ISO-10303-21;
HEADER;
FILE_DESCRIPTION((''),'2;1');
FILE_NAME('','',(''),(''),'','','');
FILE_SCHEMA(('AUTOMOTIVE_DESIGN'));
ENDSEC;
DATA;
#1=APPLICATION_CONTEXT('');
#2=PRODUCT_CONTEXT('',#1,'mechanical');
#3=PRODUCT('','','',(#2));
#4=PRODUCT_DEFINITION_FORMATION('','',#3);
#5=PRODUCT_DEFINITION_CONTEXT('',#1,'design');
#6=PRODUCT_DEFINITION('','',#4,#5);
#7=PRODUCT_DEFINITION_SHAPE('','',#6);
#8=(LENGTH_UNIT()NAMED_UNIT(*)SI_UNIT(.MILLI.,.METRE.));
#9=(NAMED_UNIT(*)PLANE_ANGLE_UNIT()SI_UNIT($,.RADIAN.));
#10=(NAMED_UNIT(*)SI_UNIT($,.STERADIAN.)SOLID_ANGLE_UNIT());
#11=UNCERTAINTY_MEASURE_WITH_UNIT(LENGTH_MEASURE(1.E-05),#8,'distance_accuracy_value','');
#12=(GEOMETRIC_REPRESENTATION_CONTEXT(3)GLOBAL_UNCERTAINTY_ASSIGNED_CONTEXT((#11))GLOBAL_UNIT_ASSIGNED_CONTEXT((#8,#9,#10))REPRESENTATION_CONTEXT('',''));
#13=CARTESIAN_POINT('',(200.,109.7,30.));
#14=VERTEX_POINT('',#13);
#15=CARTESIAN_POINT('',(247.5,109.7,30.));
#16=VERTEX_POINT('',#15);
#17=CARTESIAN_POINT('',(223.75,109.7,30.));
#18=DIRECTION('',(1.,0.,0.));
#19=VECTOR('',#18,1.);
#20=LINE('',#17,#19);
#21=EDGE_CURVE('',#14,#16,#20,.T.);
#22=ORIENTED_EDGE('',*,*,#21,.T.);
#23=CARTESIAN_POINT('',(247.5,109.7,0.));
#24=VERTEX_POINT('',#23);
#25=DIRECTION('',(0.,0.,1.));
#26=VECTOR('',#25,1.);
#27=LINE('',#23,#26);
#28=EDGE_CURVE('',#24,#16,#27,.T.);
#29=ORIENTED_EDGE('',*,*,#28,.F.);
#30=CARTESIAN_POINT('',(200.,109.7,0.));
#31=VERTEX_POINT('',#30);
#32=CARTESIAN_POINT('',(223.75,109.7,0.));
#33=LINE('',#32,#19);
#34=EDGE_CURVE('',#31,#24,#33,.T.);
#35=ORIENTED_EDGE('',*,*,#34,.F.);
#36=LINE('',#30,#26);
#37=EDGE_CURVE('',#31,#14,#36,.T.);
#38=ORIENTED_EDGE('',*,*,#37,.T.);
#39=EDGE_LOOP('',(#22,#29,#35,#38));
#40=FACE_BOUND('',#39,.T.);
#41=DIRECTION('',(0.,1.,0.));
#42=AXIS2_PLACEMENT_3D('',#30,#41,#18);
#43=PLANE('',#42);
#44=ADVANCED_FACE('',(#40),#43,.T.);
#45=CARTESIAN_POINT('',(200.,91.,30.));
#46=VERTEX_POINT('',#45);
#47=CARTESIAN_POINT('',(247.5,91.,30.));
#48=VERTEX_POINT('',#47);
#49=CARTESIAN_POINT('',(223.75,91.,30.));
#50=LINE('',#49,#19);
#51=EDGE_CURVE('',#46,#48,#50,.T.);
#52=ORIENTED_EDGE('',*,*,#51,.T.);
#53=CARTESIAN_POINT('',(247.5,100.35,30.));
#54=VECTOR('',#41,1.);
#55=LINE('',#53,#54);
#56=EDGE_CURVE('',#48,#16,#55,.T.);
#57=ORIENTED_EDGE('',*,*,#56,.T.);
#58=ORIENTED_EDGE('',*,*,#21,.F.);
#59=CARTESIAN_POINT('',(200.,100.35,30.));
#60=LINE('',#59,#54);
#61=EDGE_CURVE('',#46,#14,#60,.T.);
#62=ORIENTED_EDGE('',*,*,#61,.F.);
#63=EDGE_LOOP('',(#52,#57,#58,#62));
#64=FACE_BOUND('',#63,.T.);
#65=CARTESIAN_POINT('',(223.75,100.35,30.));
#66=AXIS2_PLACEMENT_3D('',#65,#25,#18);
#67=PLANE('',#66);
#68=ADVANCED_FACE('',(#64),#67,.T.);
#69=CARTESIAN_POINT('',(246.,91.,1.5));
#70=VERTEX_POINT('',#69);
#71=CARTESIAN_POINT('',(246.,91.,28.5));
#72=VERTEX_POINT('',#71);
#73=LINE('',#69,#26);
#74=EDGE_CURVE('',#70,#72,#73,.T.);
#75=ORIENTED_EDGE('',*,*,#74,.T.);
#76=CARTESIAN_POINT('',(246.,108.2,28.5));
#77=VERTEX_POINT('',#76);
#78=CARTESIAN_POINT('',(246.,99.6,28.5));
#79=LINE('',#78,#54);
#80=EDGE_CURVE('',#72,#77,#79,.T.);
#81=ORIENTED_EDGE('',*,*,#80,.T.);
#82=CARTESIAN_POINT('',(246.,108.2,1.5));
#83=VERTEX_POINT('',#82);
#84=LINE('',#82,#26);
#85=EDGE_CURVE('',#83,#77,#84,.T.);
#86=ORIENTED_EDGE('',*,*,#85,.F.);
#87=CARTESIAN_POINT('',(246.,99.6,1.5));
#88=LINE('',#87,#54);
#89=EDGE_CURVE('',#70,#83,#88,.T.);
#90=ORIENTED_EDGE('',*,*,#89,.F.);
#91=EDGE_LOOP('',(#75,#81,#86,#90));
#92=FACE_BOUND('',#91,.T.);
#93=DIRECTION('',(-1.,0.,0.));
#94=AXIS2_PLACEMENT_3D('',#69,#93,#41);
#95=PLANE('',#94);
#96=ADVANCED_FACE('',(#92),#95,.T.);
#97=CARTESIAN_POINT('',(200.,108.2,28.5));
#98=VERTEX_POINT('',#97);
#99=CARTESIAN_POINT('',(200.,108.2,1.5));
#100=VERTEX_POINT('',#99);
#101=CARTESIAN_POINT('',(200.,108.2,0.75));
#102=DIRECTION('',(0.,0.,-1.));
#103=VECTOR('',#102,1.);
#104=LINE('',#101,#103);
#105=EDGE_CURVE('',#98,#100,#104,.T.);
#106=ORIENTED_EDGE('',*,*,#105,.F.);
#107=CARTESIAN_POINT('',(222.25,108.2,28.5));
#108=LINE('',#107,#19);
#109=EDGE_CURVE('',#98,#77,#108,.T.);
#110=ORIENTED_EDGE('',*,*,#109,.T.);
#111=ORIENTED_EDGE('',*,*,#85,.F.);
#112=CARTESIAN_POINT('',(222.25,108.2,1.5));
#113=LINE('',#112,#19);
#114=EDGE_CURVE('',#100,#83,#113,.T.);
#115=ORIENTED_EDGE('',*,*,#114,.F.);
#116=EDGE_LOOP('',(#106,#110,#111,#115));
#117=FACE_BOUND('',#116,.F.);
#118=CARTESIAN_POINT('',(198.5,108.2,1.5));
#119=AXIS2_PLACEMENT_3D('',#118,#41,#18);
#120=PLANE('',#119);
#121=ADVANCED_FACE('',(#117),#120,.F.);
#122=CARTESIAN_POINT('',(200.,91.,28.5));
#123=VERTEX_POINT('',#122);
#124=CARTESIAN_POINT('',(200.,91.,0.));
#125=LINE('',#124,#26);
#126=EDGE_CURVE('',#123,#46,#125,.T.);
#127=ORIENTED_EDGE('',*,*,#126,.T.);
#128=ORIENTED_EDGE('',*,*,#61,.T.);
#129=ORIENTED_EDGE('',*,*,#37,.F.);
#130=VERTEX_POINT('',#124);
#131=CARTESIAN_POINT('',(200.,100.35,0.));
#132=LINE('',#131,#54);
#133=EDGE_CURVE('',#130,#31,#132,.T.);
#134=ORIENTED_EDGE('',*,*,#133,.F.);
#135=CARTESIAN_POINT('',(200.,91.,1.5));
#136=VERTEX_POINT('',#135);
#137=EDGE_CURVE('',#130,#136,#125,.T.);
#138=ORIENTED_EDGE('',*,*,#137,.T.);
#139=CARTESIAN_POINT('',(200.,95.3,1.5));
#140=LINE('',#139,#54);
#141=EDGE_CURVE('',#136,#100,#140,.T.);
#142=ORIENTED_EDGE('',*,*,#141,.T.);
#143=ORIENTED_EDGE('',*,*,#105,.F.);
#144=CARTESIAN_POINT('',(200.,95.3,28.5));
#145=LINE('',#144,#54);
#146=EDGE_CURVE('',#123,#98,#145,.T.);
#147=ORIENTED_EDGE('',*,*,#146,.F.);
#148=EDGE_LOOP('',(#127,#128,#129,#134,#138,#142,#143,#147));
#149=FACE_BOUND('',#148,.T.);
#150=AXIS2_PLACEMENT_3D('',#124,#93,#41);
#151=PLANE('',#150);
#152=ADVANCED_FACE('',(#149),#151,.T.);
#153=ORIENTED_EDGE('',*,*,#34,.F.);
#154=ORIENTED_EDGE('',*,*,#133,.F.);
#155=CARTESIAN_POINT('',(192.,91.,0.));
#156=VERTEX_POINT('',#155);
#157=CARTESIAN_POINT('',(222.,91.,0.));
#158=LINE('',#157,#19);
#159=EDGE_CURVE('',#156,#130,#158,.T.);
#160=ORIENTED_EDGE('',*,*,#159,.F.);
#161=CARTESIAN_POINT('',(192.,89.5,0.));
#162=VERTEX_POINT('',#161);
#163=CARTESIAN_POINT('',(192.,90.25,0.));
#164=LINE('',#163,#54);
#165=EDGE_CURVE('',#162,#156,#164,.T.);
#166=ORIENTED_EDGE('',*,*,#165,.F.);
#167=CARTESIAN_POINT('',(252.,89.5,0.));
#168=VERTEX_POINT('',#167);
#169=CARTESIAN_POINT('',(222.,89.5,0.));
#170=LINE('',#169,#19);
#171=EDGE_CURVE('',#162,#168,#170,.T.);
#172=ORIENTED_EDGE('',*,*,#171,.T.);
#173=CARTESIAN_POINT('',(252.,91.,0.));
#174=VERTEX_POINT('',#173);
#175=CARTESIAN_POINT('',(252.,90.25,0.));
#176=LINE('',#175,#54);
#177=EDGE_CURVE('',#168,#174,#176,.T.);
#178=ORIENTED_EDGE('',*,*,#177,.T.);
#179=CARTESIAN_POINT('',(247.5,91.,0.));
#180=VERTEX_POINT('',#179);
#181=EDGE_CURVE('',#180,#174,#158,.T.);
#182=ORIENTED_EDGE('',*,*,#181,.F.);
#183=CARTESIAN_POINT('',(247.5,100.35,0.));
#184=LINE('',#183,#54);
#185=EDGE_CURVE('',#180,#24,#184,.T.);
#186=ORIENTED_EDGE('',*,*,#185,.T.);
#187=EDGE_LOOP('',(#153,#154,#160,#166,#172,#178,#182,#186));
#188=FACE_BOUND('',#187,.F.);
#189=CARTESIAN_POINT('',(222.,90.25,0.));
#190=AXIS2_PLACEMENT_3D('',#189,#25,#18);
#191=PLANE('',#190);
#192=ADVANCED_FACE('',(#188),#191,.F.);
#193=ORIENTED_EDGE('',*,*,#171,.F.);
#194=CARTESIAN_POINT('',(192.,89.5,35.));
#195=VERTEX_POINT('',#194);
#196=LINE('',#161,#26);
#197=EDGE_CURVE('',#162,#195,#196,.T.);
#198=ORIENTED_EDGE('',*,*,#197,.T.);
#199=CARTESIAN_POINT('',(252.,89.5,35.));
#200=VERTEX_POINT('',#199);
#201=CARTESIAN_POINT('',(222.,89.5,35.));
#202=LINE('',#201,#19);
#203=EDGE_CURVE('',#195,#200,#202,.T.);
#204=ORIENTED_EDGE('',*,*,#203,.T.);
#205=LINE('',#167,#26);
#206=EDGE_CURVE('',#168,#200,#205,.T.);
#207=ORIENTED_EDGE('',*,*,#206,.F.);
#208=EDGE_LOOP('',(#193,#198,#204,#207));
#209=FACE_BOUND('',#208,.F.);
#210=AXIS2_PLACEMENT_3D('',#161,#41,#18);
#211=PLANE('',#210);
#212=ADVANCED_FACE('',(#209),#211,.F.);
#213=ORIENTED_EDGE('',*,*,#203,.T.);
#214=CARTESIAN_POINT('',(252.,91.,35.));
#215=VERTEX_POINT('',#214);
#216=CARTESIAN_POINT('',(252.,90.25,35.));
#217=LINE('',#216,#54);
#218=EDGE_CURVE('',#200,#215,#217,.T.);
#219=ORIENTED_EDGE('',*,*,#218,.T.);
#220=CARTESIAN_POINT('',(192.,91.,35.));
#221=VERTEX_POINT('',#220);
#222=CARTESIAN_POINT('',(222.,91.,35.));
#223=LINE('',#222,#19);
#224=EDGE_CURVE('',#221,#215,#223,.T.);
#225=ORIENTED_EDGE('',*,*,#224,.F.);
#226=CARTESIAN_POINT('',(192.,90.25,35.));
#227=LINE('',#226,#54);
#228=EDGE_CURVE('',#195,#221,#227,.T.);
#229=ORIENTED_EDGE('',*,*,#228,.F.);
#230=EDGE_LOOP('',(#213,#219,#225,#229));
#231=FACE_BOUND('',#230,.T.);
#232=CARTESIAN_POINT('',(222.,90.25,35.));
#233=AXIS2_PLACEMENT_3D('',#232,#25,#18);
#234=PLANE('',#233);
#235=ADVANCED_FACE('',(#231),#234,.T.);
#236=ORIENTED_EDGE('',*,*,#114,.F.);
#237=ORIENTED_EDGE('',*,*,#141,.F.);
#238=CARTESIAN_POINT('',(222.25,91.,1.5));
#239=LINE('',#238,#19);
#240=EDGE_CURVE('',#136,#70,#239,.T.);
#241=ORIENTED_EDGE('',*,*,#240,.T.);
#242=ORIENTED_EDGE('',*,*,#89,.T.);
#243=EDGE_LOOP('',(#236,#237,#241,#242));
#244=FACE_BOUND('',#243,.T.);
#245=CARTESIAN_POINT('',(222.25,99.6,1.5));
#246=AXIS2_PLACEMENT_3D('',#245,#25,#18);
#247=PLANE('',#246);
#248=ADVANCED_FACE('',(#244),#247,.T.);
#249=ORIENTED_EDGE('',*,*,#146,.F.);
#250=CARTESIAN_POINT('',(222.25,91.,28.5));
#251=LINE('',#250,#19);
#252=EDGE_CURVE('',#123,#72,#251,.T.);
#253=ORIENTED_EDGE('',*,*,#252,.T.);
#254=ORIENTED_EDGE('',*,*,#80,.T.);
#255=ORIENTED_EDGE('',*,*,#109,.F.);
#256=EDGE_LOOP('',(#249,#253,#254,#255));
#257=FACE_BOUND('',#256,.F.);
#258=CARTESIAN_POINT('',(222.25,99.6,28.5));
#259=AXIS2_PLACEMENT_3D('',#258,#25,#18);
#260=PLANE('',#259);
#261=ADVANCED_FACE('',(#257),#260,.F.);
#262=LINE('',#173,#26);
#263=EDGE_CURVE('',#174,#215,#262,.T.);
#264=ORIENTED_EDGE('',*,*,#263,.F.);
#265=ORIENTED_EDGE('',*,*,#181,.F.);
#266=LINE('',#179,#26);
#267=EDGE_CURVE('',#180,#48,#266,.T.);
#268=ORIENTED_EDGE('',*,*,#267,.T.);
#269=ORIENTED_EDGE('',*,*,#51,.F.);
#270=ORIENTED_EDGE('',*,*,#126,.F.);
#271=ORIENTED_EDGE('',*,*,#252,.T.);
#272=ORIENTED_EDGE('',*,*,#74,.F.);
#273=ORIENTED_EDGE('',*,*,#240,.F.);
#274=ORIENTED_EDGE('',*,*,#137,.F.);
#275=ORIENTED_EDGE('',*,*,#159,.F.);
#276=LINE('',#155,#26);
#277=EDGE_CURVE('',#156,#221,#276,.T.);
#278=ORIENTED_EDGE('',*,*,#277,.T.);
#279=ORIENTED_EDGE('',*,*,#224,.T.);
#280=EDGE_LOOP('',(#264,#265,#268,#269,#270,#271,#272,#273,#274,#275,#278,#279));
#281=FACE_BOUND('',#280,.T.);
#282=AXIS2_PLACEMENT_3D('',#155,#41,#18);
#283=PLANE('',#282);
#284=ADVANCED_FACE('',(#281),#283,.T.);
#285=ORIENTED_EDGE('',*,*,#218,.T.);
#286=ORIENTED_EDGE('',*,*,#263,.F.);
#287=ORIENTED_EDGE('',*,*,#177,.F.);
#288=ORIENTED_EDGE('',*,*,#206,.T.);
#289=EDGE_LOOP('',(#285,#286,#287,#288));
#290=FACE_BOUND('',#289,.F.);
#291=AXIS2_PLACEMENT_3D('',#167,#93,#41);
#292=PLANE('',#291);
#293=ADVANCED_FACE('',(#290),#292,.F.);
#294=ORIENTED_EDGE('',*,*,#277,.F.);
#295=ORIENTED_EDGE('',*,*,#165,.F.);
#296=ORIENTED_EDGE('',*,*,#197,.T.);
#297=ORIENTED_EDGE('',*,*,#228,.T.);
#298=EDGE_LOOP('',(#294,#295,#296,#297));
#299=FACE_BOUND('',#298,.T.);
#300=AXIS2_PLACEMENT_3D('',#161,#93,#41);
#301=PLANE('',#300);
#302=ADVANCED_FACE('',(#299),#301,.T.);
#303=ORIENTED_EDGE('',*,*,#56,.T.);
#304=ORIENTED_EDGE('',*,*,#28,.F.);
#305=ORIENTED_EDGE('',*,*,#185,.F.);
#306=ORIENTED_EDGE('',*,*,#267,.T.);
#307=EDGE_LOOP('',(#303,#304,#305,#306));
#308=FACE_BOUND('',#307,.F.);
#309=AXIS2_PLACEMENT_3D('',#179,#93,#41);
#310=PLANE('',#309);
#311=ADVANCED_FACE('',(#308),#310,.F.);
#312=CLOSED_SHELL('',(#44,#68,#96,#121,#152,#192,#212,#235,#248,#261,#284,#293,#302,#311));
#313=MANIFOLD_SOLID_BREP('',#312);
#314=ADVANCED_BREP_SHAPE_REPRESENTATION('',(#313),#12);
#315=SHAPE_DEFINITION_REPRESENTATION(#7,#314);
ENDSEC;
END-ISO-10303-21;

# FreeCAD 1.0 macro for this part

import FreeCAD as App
import Part
import Sketcher

doc = App.newDocument("Part")
body = doc.addObject("PartDesign::Body", "Body")

# Sketch on XY plane
sketch1 = body.newObject("Sketcher::SketchObject", "Sketch")
sketch1.AttachmentSupport = (doc.getObject("XY_Plane"), [""])
sketch1.MapMode = "FlatFace"
sketch1.addGeometry([
    Part.LineSegment(App.Vector(192, 91, 0), App.Vector(192, 89.5, 0)),
    Part.LineSegment(App.Vector(192, 89.5, 0), App.Vector(252, 89.5, 0)),
    Part.LineSegment(App.Vector(252, 89.5, 0), App.Vector(252, 91, 0)),
    Part.LineSegment(App.Vector(252, 91, 0), App.Vector(192, 91, 0)),
], False)
sketch1.addConstraint([
    Sketcher.Constraint("Coincident", 0, 2, 1, 1),
    Sketcher.Constraint("Coincident", 1, 2, 2, 1),
    Sketcher.Constraint("Coincident", 2, 2, 3, 1),
    Sketcher.Constraint("Coincident", 3, 2, 0, 1),
    Sketcher.Constraint("Vertical", 0),
    Sketcher.Constraint("Horizontal", 1),
    Sketcher.Constraint("Vertical", 2),
    Sketcher.Constraint("Horizontal", 3),
    Sketcher.Constraint("DistanceX", 1, 1, 1, 2, 60.0),
    Sketcher.Constraint("DistanceY", 0, 2, 0, 1, 1.5),
    Sketcher.Constraint("DistanceX", -1, 1, 0, 2, 192.0),
    Sketcher.Constraint("DistanceY", -1, 1, 2, 2, 91.0),
])
pad1 = body.newObject("PartDesign::Pad", "Pad")
pad1.Profile = sketch1
pad1.Length = 35
body2 = doc.addObject("PartDesign::Body", "Body001")

# Sketch on XY plane
sketch2 = body2.newObject("Sketcher::SketchObject", "Sketch001")
sketch2.AttachmentSupport = (doc.getObject("XY_Plane001"), [""])
sketch2.MapMode = "FlatFace"
sketch2.AttachmentOffset = App.Placement(App.Vector(0, 0, 60), App.Rotation())
sketch2.addGeometry([
    Part.LineSegment(App.Vector(-2, 17, 0), App.Vector(-2, 0, 0)),
    Part.LineSegment(App.Vector(-2, 0, 0), App.Vector(46, 0, 0)),
    Part.LineSegment(App.Vector(46, 0, 0), App.Vector(46, 17, 0)),
    Part.LineSegment(App.Vector(46, 17, 0), App.Vector(-2, 17, 0)),
], False)
sketch2.addConstraint([
    Sketcher.Constraint("Coincident", 0, 2, 1, 1),
    Sketcher.Constraint("Coincident", 1, 2, 2, 1),
    Sketcher.Constraint("Coincident", 2, 2, 3, 1),
    Sketcher.Constraint("Coincident", 3, 2, 0, 1),
    Sketcher.Constraint("Vertical", 0),
    Sketcher.Constraint("Horizontal", 1),
    Sketcher.Constraint("Vertical", 2),
    Sketcher.Constraint("Horizontal", 3),
    Sketcher.Constraint("PointOnObject", 0, 2, -1),
    Sketcher.Constraint("DistanceX", 1, 1, 1, 2, 47.5),
    Sketcher.Constraint("DistanceY", 0, 2, 0, 1, 17.2),
    Sketcher.Constraint("DistanceX", -1, 1, 1, 2, 46.0),
])
pad2 = body2.newObject("PartDesign::Pad", "Pad001")
pad2.Profile = sketch2
pad2.Length = 27
body3 = doc.addObject("PartDesign::Body", "Body002")

# Sketch on XY plane
sketch3 = body3.newObject("Sketcher::SketchObject", "Sketch002")
sketch3.AttachmentSupport = (doc.getObject("XY_Plane002"), [""])
sketch3.MapMode = "FlatFace"
sketch3.AttachmentOffset = App.Placement(App.Vector(0, 0, 58.5), App.Rotation())
sketch3.addGeometry([
    Part.LineSegment(App.Vector(0, 19, 0), App.Vector(0, 0, 0)),
    Part.LineSegment(App.Vector(0, 0, 0), App.Vector(48, 0, 0)),
    Part.LineSegment(App.Vector(48, 0, 0), App.Vector(48, 19, 0)),
    Part.LineSegment(App.Vector(48, 19, 0), App.Vector(0, 19, 0)),
], False)
sketch3.addConstraint([
    Sketcher.Constraint("Coincident", 0, 2, 1, 1),
    Sketcher.Constraint("Coincident", 1, 2, 2, 1),
    Sketcher.Constraint("Coincident", 2, 2, 3, 1),
    Sketcher.Constraint("Coincident", 3, 2, 0, 1),
    Sketcher.Constraint("Vertical", 0),
    Sketcher.Constraint("Horizontal", 1),
    Sketcher.Constraint("Vertical", 2),
    Sketcher.Constraint("Horizontal", 3),
    Sketcher.Constraint("Coincident", 0, 2, -1, 1),
    Sketcher.Constraint("DistanceX", 1, 1, 1, 2, 47.5),
    Sketcher.Constraint("DistanceY", 0, 2, 0, 1, 18.7),
])
pad3 = body3.newObject("PartDesign::Pad", "Pad002")
pad3.Profile = sketch3
pad3.Length = 30
doc.recompute()

boolean = body3.newObject("PartDesign::Boolean", "Boolean")
boolean.Type = "Cut"
boolean.addObjects([body2])
body4 = doc.addObject("PartDesign::Body", "Body003")
doc.recompute()

body3.Placement = App.Placement(App.Vector(200, 91, -58.5), App.Rotation(App.Vector(0, 0, 1), 0))
boolean2 = body4.newObject("PartDesign::Boolean", "Boolean001")
boolean2.Type = "Fuse"
boolean2.addObjects([body3])
doc.recompute()

boolean3 = body4.newObject("PartDesign::Boolean", "Boolean002")
boolean3.Type = "Fuse"
boolean3.addObjects([body])

doc.recompute()
